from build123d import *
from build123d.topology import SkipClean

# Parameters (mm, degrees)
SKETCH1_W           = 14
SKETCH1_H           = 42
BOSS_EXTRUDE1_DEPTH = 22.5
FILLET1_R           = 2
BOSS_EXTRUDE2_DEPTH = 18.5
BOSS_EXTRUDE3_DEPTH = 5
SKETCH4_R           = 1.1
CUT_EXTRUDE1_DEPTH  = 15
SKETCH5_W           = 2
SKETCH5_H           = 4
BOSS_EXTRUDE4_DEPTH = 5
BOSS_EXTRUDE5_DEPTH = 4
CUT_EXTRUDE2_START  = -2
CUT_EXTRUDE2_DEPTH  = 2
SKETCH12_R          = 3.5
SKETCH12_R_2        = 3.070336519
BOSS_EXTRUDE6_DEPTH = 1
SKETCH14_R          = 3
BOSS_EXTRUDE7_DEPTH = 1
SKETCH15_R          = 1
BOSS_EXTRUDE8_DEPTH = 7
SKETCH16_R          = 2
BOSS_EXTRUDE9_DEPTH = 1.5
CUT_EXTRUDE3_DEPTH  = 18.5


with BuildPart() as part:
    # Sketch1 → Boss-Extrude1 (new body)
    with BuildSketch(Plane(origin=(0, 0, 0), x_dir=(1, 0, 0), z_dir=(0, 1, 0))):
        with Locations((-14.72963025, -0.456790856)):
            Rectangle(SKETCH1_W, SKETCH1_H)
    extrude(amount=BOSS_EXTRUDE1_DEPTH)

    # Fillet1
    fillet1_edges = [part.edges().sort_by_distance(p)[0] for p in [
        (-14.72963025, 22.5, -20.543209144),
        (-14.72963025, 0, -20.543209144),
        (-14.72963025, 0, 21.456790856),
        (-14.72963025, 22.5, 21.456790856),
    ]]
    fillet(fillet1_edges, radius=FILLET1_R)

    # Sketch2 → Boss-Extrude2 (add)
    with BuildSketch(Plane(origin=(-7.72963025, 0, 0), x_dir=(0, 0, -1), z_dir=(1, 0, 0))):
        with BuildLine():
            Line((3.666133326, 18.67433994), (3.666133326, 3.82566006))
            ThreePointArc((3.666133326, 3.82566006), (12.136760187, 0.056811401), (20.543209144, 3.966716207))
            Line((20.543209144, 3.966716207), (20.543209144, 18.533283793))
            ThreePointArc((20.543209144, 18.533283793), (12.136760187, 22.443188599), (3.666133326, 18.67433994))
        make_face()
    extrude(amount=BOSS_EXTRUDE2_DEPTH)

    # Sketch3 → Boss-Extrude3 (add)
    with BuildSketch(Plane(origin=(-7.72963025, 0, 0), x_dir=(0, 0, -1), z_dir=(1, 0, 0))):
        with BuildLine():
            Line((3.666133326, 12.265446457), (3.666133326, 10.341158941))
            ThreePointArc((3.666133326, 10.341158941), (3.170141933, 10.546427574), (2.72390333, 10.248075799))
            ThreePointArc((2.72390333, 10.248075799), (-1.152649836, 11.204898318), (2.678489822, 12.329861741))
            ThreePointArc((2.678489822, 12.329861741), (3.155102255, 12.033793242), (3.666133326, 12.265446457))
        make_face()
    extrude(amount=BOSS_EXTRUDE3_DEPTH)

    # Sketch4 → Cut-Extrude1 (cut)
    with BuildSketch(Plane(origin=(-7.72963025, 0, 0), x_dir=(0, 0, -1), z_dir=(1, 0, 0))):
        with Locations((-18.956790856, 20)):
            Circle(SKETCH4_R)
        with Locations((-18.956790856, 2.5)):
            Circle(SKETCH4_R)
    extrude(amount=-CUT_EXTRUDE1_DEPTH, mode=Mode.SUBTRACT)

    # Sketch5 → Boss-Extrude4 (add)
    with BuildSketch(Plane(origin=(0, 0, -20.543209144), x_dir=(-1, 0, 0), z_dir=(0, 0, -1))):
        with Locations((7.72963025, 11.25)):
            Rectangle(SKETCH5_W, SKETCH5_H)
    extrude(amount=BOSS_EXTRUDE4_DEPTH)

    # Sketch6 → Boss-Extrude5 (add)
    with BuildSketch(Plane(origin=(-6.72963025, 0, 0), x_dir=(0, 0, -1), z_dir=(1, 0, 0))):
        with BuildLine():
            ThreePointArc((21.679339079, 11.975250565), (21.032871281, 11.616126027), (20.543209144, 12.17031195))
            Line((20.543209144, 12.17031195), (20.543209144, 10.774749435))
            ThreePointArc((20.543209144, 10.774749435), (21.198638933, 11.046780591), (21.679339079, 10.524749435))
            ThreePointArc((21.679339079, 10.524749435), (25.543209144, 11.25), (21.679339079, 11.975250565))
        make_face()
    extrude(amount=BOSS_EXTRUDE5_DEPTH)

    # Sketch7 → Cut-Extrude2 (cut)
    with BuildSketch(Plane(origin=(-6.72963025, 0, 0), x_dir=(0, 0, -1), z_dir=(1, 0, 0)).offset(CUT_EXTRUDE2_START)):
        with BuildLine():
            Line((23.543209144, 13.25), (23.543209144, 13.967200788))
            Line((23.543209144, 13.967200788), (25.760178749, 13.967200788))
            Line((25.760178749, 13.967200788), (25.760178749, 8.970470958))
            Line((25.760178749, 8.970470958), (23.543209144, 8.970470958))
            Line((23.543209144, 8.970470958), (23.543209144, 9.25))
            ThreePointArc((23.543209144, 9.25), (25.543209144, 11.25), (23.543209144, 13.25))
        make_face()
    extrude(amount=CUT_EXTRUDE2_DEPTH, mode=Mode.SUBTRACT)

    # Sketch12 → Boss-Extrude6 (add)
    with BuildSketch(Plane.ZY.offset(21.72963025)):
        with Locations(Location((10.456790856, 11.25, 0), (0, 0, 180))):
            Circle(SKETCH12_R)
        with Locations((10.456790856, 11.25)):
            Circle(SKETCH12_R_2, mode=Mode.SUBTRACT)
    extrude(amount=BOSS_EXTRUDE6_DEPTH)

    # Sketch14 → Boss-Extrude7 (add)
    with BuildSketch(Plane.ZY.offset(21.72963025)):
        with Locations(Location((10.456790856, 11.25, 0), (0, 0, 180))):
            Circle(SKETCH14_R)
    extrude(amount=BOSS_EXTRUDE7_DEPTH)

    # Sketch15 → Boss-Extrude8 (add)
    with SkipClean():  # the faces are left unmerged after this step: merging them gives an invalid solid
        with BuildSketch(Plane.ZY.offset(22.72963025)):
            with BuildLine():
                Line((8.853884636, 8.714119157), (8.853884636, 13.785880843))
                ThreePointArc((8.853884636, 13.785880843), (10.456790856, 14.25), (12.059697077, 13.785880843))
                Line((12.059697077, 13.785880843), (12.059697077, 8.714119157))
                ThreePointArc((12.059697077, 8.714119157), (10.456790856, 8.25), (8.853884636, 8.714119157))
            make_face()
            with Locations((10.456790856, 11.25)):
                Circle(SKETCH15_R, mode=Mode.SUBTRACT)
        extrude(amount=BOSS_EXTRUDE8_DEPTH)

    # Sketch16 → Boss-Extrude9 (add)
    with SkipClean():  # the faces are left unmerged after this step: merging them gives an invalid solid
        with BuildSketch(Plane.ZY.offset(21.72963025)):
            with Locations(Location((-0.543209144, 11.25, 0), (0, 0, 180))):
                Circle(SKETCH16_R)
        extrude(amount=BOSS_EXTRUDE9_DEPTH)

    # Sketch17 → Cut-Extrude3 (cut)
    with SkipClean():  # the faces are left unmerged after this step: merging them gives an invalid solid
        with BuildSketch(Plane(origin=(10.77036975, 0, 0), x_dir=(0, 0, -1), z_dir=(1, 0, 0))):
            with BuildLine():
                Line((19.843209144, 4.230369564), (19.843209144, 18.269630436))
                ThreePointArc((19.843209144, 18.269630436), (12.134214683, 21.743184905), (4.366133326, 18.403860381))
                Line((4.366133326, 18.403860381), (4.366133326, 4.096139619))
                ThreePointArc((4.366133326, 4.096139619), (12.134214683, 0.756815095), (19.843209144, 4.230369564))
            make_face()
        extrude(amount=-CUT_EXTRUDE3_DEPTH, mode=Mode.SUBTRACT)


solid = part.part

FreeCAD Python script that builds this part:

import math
import FreeCAD as App
import Part
import Sketcher

V = App.Vector


def edges_at(feature, points):
    """Names of the edges that pass closest to the given points."""
    edges = feature.Shape.Edges
    near = lambda p: min(range(len(edges)), key=lambda i: edges[i].distToShape(Part.Vertex(*p))[0])
    return sorted({f"Edge{near(p) + 1}" for p in points})


def add_polygon(sketch, points):
    """Adds a closed chain of lines whose ends are joined by coincident constraints."""
    first, n = sketch.GeometryCount, len(points)
    for a, b in zip(points, points[1:] + points[:1]):
        sketch.addGeometry(Part.LineSegment(App.Vector(*a, 0), App.Vector(*b, 0)), False)
    for i in range(n):
        sketch.addConstraint(Sketcher.Constraint("Coincident", first + i, 2, first + (i + 1) % n, 1))

doc = App.newDocument("Part")
params = doc.addObject("Spreadsheet::Sheet", "Params")
for row, (alias, value) in enumerate([
    ("sketch1_width", "14 mm"),
    ("sketch1_height", "42 mm"),
    ("pad1_length", "22.5 mm"),
    ("fillet_radius", "2 mm"),
    ("sketch2_height", "8.5 mm"),
    ("pad2_length", "18.5 mm"),
    ("pad3_length", "5 mm"),
    ("sketch4_diameter", "2.2 mm"),
    ("pocket1_length", "15 mm"),
    ("sketch5_width", "2 mm"),
    ("sketch5_height", "4 mm"),
    ("pad4_length", "5 mm"),
    ("sketch6_radius", "2 mm"),
    ("pad5_length", "4 mm"),
    ("sketch7_radius", "2 mm"),
    ("pocket2_length", "2 mm"),
    ("sketch8_diameter", "7 mm"),
    ("pad6_length", "1 mm"),
    ("sketch9_diameter", "6 mm"),
    ("pad7_length", "1 mm"),
    ("sketch10_diameter", "2 mm"),
    ("sketch10_radius", "3 mm"),
    ("pad8_length", "7 mm"),
    ("sketch11_diameter", "4 mm"),
    ("pad9_length", "1.5 mm"),
    ("pocket3_length", "18.5 mm"),
], start=1):
    params.set(f"A{row}", alias)
    params.set(f"B{row}", "=" + value)
    params.setAlias(f"B{row}", alias)

body = doc.addObject("PartDesign::Body", "Body")

# Sketch on XZ plane
sketch1 = body.newObject("Sketcher::SketchObject", "Sketch")
sketch1.AttachmentSupport = (doc.getObject("XZ_Plane"), [""])
sketch1.MapMode = "FlatFace"
add_polygon(sketch1, [(-22, -21), (-22, 21), (-8, 21), (-8, -21)])  # lines 0-3
sketch1.addConstraint(Sketcher.Constraint("Vertical", 0))
sketch1.addConstraint(Sketcher.Constraint("Horizontal", 1))
sketch1.addConstraint(Sketcher.Constraint("Vertical", 2))
sketch1.addConstraint(Sketcher.Constraint("Horizontal", 3))
sketch1.addConstraint(Sketcher.Constraint("DistanceX", 1, 1, 1, 2, 14.0))
sketch1.addConstraint(Sketcher.Constraint("DistanceY", 0, 1, 0, 2, 42.0))
sketch1.addConstraint(Sketcher.Constraint("DistanceX", 0, 2, -1, 1, 21.72963))
sketch1.addConstraint(Sketcher.Constraint("DistanceY", -1, 1, 0, 2, 21.456791))
sketch1.setExpression("Constraints[8]", "Params.sketch1_width")
sketch1.setExpression("Constraints[9]", "Params.sketch1_height")
pad1 = body.newObject("PartDesign::Pad", "Pad")
pad1.Profile = sketch1
pad1.setExpression("Length", "Params.pad1_length")
pad1.Reversed = True
doc.recompute()

fillet = body.newObject("PartDesign::Fillet", "Fillet")
fillet.Base = (pad1, edges_at(pad1, [
    (-14.73, 22.5, -20.543),
    (-14.73, 0, -20.543),
    (-14.73, 0, 21.457),
    (-14.73, 22.5, 21.457),
]))
fillet.setExpression("Radius", "Params.fillet_radius")

# Sketch on YZ plane
sketch2 = body.newObject("Sketcher::SketchObject", "Sketch001")
sketch2.AttachmentSupport = (doc.getObject("YZ_Plane"), [""])
sketch2.MapMode = "FlatFace"
sketch2.AttachmentOffset = App.Placement(V(0, 0, -7.72963), App.Rotation())
sketch2.addGeometry(Part.LineSegment(V(19, -4, 0), V(4, -4, 0)), False)
sketch2.addGeometry(Part.ArcOfCircle(Part.Circle(V(11, -12, 0), V(0, 0, 1), 11), math.radians(132), math.radians(229)), False)
sketch2.addGeometry(Part.LineSegment(V(4, -21, 0), V(19, -21, 0)), False)
sketch2.addGeometry(Part.ArcOfCircle(Part.Circle(V(11, -12, 0), V(0, 0, 1), 11), math.radians(-49), math.radians(48)), False)
sketch2.addConstraint(Sketcher.Constraint("Coincident", 0, 2, 1, 1))
sketch2.addConstraint(Sketcher.Constraint("Coincident", 1, 2, 2, 1))
sketch2.addConstraint(Sketcher.Constraint("Coincident", 2, 2, 3, 1))
sketch2.addConstraint(Sketcher.Constraint("Coincident", 3, 2, 0, 1))
sketch2.addConstraint(Sketcher.Constraint("Horizontal", 0))
sketch2.addConstraint(Sketcher.Constraint("Horizontal", 2))
sketch2.addConstraint(Sketcher.Constraint("Coincident", 3, 3, 1, 3))
sketch2.addConstraint(Sketcher.Constraint("Equal", 1, 3))
sketch2.addConstraint(Sketcher.Constraint("DistanceY", 1, 2, 1, 3, 8.5))
sketch2.addConstraint(Sketcher.Constraint("DistanceX", -1, 1, 1, 3, 11.25))
sketch2.addConstraint(Sketcher.Constraint("Radius", 1, 11.19358))
sketch2.addConstraint(Sketcher.Constraint("DistanceX", 0, 2, 0, 1, 14.84868))
sketch2.addConstraint(Sketcher.Constraint("DistanceY", 1, 3, -1, 1, 12.043209))
sketch2.setExpression("Constraints[8]", "Params.sketch2_height")
pad2 = body.newObject("PartDesign::Pad", "Pad001")
pad2.Profile = sketch2
pad2.setExpression("Length", "Params.pad2_length")

# Sketch on YZ plane
sketch3 = body.newObject("Sketcher::SketchObject", "Sketch002")
sketch3.AttachmentSupport = (doc.getObject("YZ_Plane"), [""])
sketch3.MapMode = "FlatFace"
sketch3.AttachmentOffset = App.Placement(V(0, 0, -7.72963), App.Rotation())
sketch3.addGeometry(Part.LineSegment(V(10.3, -3.7, 0), V(12.3, -3.7, 0)), False)
sketch3.addGeometry(Part.ArcOfCircle(Part.Circle(V(12.6, -3.2, 0), V(0, 0, 1), 0.6), math.radians(120), math.radians(233)), False)
sketch3.addGeometry(Part.ArcOfCircle(Part.Circle(V(11.2, -0.9, 0), V(0, 0, 1), 2.1), math.radians(-59), math.radians(241)), False)
sketch3.addGeometry(Part.ArcOfCircle(Part.Circle(V(10, -3.2, 0), V(0, 0, 1), 0.6), math.radians(-51), math.radians(62)), False)
sketch3.addConstraint(Sketcher.Constraint("Coincident", 0, 2, 1, 2))
sketch3.addConstraint(Sketcher.Constraint("Coincident", 1, 1, 2, 1))
sketch3.addConstraint(Sketcher.Constraint("Coincident", 2, 2, 3, 2))
sketch3.addConstraint(Sketcher.Constraint("Coincident", 3, 1, 0, 1))
sketch3.addConstraint(Sketcher.Constraint("Horizontal", 0))
sketch3.addConstraint(Sketcher.Constraint("DistanceX", -1, 1, 2, 3, 11.25))
sketch3.addConstraint(Sketcher.Constraint("Radius", 1, 0.595292))
sketch3.addConstraint(Sketcher.Constraint("Radius", 3, 0.569371))
sketch3.addConstraint(Sketcher.Constraint("Radius", 2, 2.067984))
sketch3.addConstraint(Sketcher.Constraint("DistanceX", 0, 1, 0, 2, 1.924288))
sketch3.addConstraint(Sketcher.Constraint("DistanceY", 2, 3, -1, 1, 0.914842))
sketch3.addConstraint(Sketcher.Constraint("DistanceX", -1, 1, 1, 1, 12.329862))
sketch3.addConstraint(Sketcher.Constraint("DistanceX", -1, 1, 3, 1, 10.341159))
sketch3.addConstraint(Sketcher.Constraint("DistanceX", 3, 3, 1, 3, 2.648008))
sketch3.addConstraint(Sketcher.Constraint("DistanceX", 3, 3, 0, 2, 2.285632))
pad3 = body.newObject("PartDesign::Pad", "Pad002")
pad3.Profile = sketch3
pad3.setExpression("Length", "Params.pad3_length")

# Sketch on YZ plane
sketch4 = body.newObject("Sketcher::SketchObject", "Sketch003")
sketch4.AttachmentSupport = (doc.getObject("YZ_Plane"), [""])
sketch4.MapMode = "FlatFace"
sketch4.AttachmentOffset = App.Placement(V(0, 0, -7.72963), App.Rotation())
sketch4.addGeometry(Part.Circle(V(20, 19, 0), V(0, 0, 1), 1.1), False)
sketch4.addGeometry(Part.Circle(V(2.5, 19, 0), V(0, 0, 1), 1.1), False)
sketch4.addConstraint(Sketcher.Constraint("Equal", 0, 1))
sketch4.addConstraint(Sketcher.Constraint("Horizontal", 0, 3, 1, 3))
sketch4.addConstraint(Sketcher.Constraint("Diameter", 0, 2.2))
sketch4.addConstraint(Sketcher.Constraint("DistanceX", -1, 1, 0, 3, 20.0))
sketch4.addConstraint(Sketcher.Constraint("DistanceX", -1, 1, 1, 3, 2.5))
sketch4.addConstraint(Sketcher.Constraint("DistanceY", -1, 1, 0, 3, 18.956791))
sketch4.setExpression("Constraints[2]", "Params.sketch4_diameter")
pocket1 = body.newObject("PartDesign::Pocket", "Pocket")
pocket1.Profile = sketch4
pocket1.setExpression("Length", "Params.pocket1_length")

# Sketch on XY plane
sketch5 = body.newObject("Sketcher::SketchObject", "Sketch004")
sketch5.AttachmentSupport = (doc.getObject("XY_Plane"), [""])
sketch5.MapMode = "FlatFace"
sketch5.AttachmentOffset = App.Placement(V(0, 0, -20.543209), App.Rotation())
add_polygon(sketch5, [(-6.7, 13.2), (-6.7, 9.2), (-8.7, 9.2), (-8.7, 13.2)])  # lines 0-3
sketch5.addConstraint(Sketcher.Constraint("Vertical", 0))
sketch5.addConstraint(Sketcher.Constraint("Horizontal", 1))
sketch5.addConstraint(Sketcher.Constraint("Vertical", 2))
sketch5.addConstraint(Sketcher.Constraint("Horizontal", 3))
sketch5.addConstraint(Sketcher.Constraint("DistanceX", 1, 2, 1, 1, 2.0))
sketch5.addConstraint(Sketcher.Constraint("DistanceY", 0, 2, 0, 1, 4.0))
sketch5.addConstraint(Sketcher.Constraint("DistanceY", -1, 1, 0, 2, 9.25))
sketch5.addConstraint(Sketcher.Constraint("DistanceX", 0, 2, -1, 1, 6.72963))
sketch5.setExpression("Constraints[8]", "Params.sketch5_width")
sketch5.setExpression("Constraints[9]", "Params.sketch5_height")
pad4 = body.newObject("PartDesign::Pad", "Pad003")
pad4.Profile = sketch5
pad4.setExpression("Length", "Params.pad4_length")
pad4.Reversed = True

# Sketch on YZ plane
sketch6 = body.newObject("Sketcher::SketchObject", "Sketch005")
sketch6.AttachmentSupport = (doc.getObject("YZ_Plane"), [""])
sketch6.MapMode = "FlatFace"
sketch6.AttachmentOffset = App.Placement(V(0, 0, -6.72963), App.Rotation())
sketch6.addGeometry(Part.ArcOfCircle(Part.Circle(V(12.2, -21.1, 0), V(0, 0, 1), 0.6), math.radians(93), math.radians(248)), False)
sketch6.addGeometry(Part.LineSegment(V(12.2, -20.5, 0), V(10.8, -20.5, 0)), False)
sketch6.addGeometry(Part.ArcOfCircle(Part.Circle(V(10.4, -21.1, 0), V(0, 0, 1), 0.6), math.radians(-82), math.radians(57)), False)
sketch6.addGeometry(Part.ArcOfCircle(Part.Circle(V(11.2, -23.5, 0), V(0, 0, 1), 2), math.radians(111), math.radians(429)), False)
sketch6.addConstraint(Sketcher.Constraint("Coincident", 0, 1, 1, 1))
sketch6.addConstraint(Sketcher.Constraint("Coincident", 1, 2, 2, 2))
sketch6.addConstraint(Sketcher.Constraint("Coincident", 2, 1, 3, 1))
sketch6.addConstraint(Sketcher.Constraint("Coincident", 3, 2, 0, 2))
sketch6.addConstraint(Sketcher.Constraint("Horizontal", 1))
sketch6.addConstraint(Sketcher.Constraint("Horizontal", 2, 1, 3, 2))
sketch6.addConstraint(Sketcher.Constraint("Radius", 3, 2.0))
sketch6.addConstraint(Sketcher.Constraint("DistanceY", 3, 3, 0, 1, 3.0))
sketch6.addConstraint(Sketcher.Constraint("DistanceX", -1, 1, 3, 3, 11.25))
sketch6.addConstraint(Sketcher.Constraint("DistanceX", 2, 1, 1, 2, 0.25))
sketch6.addConstraint(Sketcher.Constraint("Radius", 0, 0.590166))
sketch6.addConstraint(Sketcher.Constraint("Radius", 2, 0.619376))
sketch6.addConstraint(Sketcher.Constraint("DistanceX", 2, 1, 3, 2, 1.450501))
sketch6.addConstraint(Sketcher.Constraint("DistanceX", 1, 2, 1, 1, 1.395563))
sketch6.addConstraint(Sketcher.Constraint("DistanceY", 3, 3, -1, 1, 23.543209))
sketch6.setExpression("Constraints[6]", "Params.sketch6_radius")
pad5 = body.newObject("PartDesign::Pad", "Pad004")
pad5.Profile = sketch6
pad5.setExpression("Length", "Params.pad5_length")

# Sketch on YZ plane
sketch7 = body.newObject("Sketcher::SketchObject", "Sketch006")
sketch7.AttachmentSupport = (doc.getObject("YZ_Plane"), [""])
sketch7.MapMode = "FlatFace"
sketch7.AttachmentOffset = App.Placement(V(0, 0, -8.72963), App.Rotation())
sketch7.addGeometry(Part.LineSegment(V(13.97, -23.54, 0), V(13.25, -23.54, 0)), False)
sketch7.addGeometry(Part.ArcOfCircle(Part.Circle(V(11.25, -23.54, 0), V(0, 0, 1), 2), math.radians(180), math.radians(360)), False)
sketch7.addGeometry(Part.LineSegment(V(9.25, -23.54, 0), V(8.97, -23.54, 0)), False)
sketch7.addGeometry(Part.LineSegment(V(8.97, -23.54, 0), V(8.97, -25.76, 0)), False)
sketch7.addGeometry(Part.LineSegment(V(8.97, -25.76, 0), V(13.97, -25.76, 0)), False)
sketch7.addGeometry(Part.LineSegment(V(13.97, -25.76, 0), V(13.97, -23.54, 0)), False)
sketch7.addConstraint(Sketcher.Constraint("Coincident", 0, 2, 1, 2))
sketch7.addConstraint(Sketcher.Constraint("Coincident", 1, 1, 2, 1))
sketch7.addConstraint(Sketcher.Constraint("Coincident", 2, 2, 3, 1))
sketch7.addConstraint(Sketcher.Constraint("Coincident", 3, 2, 4, 1))
sketch7.addConstraint(Sketcher.Constraint("Coincident", 4, 2, 5, 1))
sketch7.addConstraint(Sketcher.Constraint("Coincident", 5, 2, 0, 1))
sketch7.addConstraint(Sketcher.Constraint("Horizontal", 0))
sketch7.addConstraint(Sketcher.Constraint("Horizontal", 2))
sketch7.addConstraint(Sketcher.Constraint("Vertical", 3))
sketch7.addConstraint(Sketcher.Constraint("Horizontal", 4))
sketch7.addConstraint(Sketcher.Constraint("Vertical", 5))
sketch7.addConstraint(Sketcher.Constraint("Horizontal", 1, 3, 0, 2))
sketch7.addConstraint(Sketcher.Constraint("Horizontal", 0, 2, 1, 1))
sketch7.addConstraint(Sketcher.Constraint("Radius", 1, 2.0))
sketch7.addConstraint(Sketcher.Constraint("DistanceX", -1, 1, 1, 3, 11.25))
sketch7.addConstraint(Sketcher.Constraint("DistanceX", 0, 2, 0, 1, 0.717201))
sketch7.addConstraint(Sketcher.Constraint("DistanceX", 2, 2, 2, 1, 0.279529))
sketch7.addConstraint(Sketcher.Constraint("DistanceY", 3, 2, 3, 1, 2.21697))
sketch7.addConstraint(Sketcher.Constraint("DistanceY", 1, 3, -1, 1, 23.543209))
sketch7.setExpression("Constraints[13]", "Params.sketch7_radius")
pocket2 = body.newObject("PartDesign::Pocket", "Pocket001")
pocket2.Profile = sketch7
pocket2.setExpression("Length", "Params.pocket2_length")
pocket2.Reversed = True

# Sketch on YZ plane
sketch8 = body.newObject("Sketcher::SketchObject", "Sketch007")
sketch8.AttachmentSupport = (doc.getObject("YZ_Plane"), [""])
sketch8.MapMode = "FlatFace"
sketch8.AttachmentOffset = App.Placement(V(0, 0, -21.72963), App.Rotation())
sketch8.addGeometry(Part.Circle(V(11.2, 10.5, 0), V(0, 0, 1), 3.5), False)
sketch8.addGeometry(Part.Circle(V(11.2, 10.5, 0), V(0, 0, 1), 3.1), False)
sketch8.addConstraint(Sketcher.Constraint("Coincident", 1, 3, 0, 3))
sketch8.addConstraint(Sketcher.Constraint("Diameter", 0, 7.0))
sketch8.addConstraint(Sketcher.Constraint("DistanceX", -1, 1, 0, 3, 11.25))
sketch8.addConstraint(Sketcher.Constraint("Diameter", 1, 6.140673))
sketch8.addConstraint(Sketcher.Constraint("DistanceY", -1, 1, 0, 3, 10.456791))
sketch8.setExpression("Constraints[1]", "Params.sketch8_diameter")
pad6 = body.newObject("PartDesign::Pad", "Pad005")
pad6.Profile = sketch8
pad6.setExpression("Length", "Params.pad6_length")
pad6.Reversed = True

# Sketch on YZ plane
sketch9 = body.newObject("Sketcher::SketchObject", "Sketch008")
sketch9.AttachmentSupport = (doc.getObject("YZ_Plane"), [""])
sketch9.MapMode = "FlatFace"
sketch9.AttachmentOffset = App.Placement(V(0, 0, -21.72963), App.Rotation())
sketch9.addGeometry(Part.Circle(V(11.2, 10.5, 0), V(0, 0, 1), 3), False)
sketch9.addConstraint(Sketcher.Constraint("Diameter", 0, 6.0))
sketch9.addConstraint(Sketcher.Constraint("DistanceX", -1, 1, 0, 3, 11.25))
sketch9.addConstraint(Sketcher.Constraint("DistanceY", -1, 1, 0, 3, 10.456791))
sketch9.setExpression("Constraints[0]", "Params.sketch9_diameter")
pad7 = body.newObject("PartDesign::Pad", "Pad006")
pad7.Profile = sketch9
pad7.setExpression("Length", "Params.pad7_length")
pad7.Reversed = True

# Sketch on YZ plane
sketch10 = body.newObject("Sketcher::SketchObject", "Sketch009")
sketch10.AttachmentSupport = (doc.getObject("YZ_Plane"), [""])
sketch10.MapMode = "FlatFace"
sketch10.AttachmentOffset = App.Placement(V(0, 0, -22.72963), App.Rotation())
sketch10.addGeometry(Part.LineSegment(V(13.8, 8.9, 0), V(8.7, 8.9, 0)), False)
sketch10.addGeometry(Part.ArcOfCircle(Part.Circle(V(11.3, 10.5, 0), V(0, 0, 1), 3), math.radians(148), math.radians(212)), False)
sketch10.addGeometry(Part.LineSegment(V(8.7, 12.1, 0), V(13.8, 12.1, 0)), False)
sketch10.addGeometry(Part.ArcOfCircle(Part.Circle(V(11.2, 10.5, 0), V(0, 0, 1), 3), math.radians(-32), math.radians(32)), False)
sketch10.addGeometry(Part.Circle(V(11.2, 10.5, 0), V(0, 0, 1), 1), False)
sketch10.addConstraint(Sketcher.Constraint("Coincident", 0, 2, 1, 2))
sketch10.addConstraint(Sketcher.Constraint("Coincident", 1, 1, 2, 1))
sketch10.addConstraint(Sketcher.Constraint("Coincident", 2, 2, 3, 2))
sketch10.addConstraint(Sketcher.Constraint("Coincident", 3, 1, 0, 1))
sketch10.addConstraint(Sketcher.Constraint("Horizontal", 0))
sketch10.addConstraint(Sketcher.Constraint("Horizontal", 2))
sketch10.addConstraint(Sketcher.Constraint("Coincident", 3, 3, 1, 3))
sketch10.addConstraint(Sketcher.Constraint("Coincident", 4, 3, 1, 3))
sketch10.addConstraint(Sketcher.Constraint("Equal", 1, 3))
sketch10.addConstraint(Sketcher.Constraint("Vertical", 0, 2, 1, 1))
sketch10.addConstraint(Sketcher.Constraint("Diameter", 4, 2.0))
sketch10.addConstraint(Sketcher.Constraint("Radius", 1, 3.0))
sketch10.addConstraint(Sketcher.Constraint("DistanceX", -1, 1, 1, 3, 11.25))
sketch10.addConstraint(Sketcher.Constraint("DistanceX", 0, 2, 0, 1, 5.071762))
sketch10.addConstraint(Sketcher.Constraint("DistanceY", -1, 1, 1, 3, 10.456791))
sketch10.setExpression("Constraints[10]", "Params.sketch10_diameter")
sketch10.setExpression("Constraints[11]", "Params.sketch10_radius")
pad8 = body.newObject("PartDesign::Pad", "Pad007")
pad8.Profile = sketch10
pad8.setExpression("Length", "Params.pad8_length")
pad8.Reversed = True

# Sketch on YZ plane
sketch11 = body.newObject("Sketcher::SketchObject", "Sketch010")
sketch11.AttachmentSupport = (doc.getObject("YZ_Plane"), [""])
sketch11.MapMode = "FlatFace"
sketch11.AttachmentOffset = App.Placement(V(0, 0, -21.72963), App.Rotation())
sketch11.addGeometry(Part.Circle(V(11.2, -0.5, 0), V(0, 0, 1), 2), False)
sketch11.addConstraint(Sketcher.Constraint("Diameter", 0, 4.0))
sketch11.addConstraint(Sketcher.Constraint("DistanceX", -1, 1, 0, 3, 11.25))
sketch11.addConstraint(Sketcher.Constraint("DistanceY", 0, 3, -1, 1, 0.543209))
sketch11.setExpression("Constraints[0]", "Params.sketch11_diameter")
pad9 = body.newObject("PartDesign::Pad", "Pad008")
pad9.Profile = sketch11
pad9.setExpression("Length", "Params.pad9_length")
pad9.Reversed = True

# Sketch on YZ plane
sketch12 = body.newObject("Sketcher::SketchObject", "Sketch011")
sketch12.AttachmentSupport = (doc.getObject("YZ_Plane"), [""])
sketch12.MapMode = "FlatFace"
sketch12.AttachmentOffset = App.Placement(V(0, 0, 10.77037), App.Rotation())
sketch12.addGeometry(Part.LineSegment(V(4, -20, 0), V(18, -20, 0)), False)
sketch12.addGeometry(Part.ArcOfCircle(Part.Circle(V(11, -12, 0), V(0, 0, 1), 10), math.radians(-48), math.radians(47)), False)
sketch12.addGeometry(Part.LineSegment(V(18, -4, 0), V(4, -4, 0)), False)
sketch12.addGeometry(Part.ArcOfCircle(Part.Circle(V(11, -12, 0), V(0, 0, 1), 10), math.radians(133), math.radians(228)), False)
sketch12.addConstraint(Sketcher.Constraint("Coincident", 0, 2, 1, 1))
sketch12.addConstraint(Sketcher.Constraint("Coincident", 1, 2, 2, 1))
sketch12.addConstraint(Sketcher.Constraint("Coincident", 2, 2, 3, 1))
sketch12.addConstraint(Sketcher.Constraint("Coincident", 3, 2, 0, 1))
sketch12.addConstraint(Sketcher.Constraint("Horizontal", 0))
sketch12.addConstraint(Sketcher.Constraint("Horizontal", 2))
sketch12.addConstraint(Sketcher.Constraint("Coincident", 3, 3, 1, 3))
sketch12.addConstraint(Sketcher.Constraint("Equal", 1, 3))
sketch12.addConstraint(Sketcher.Constraint("DistanceY", 0, 2, 3, 3, 7.8))
sketch12.addConstraint(Sketcher.Constraint("DistanceX", -1, 1, 1, 3, 11.25))
sketch12.addConstraint(Sketcher.Constraint("Radius", 1, 10.49358))
sketch12.addConstraint(Sketcher.Constraint("DistanceX", 2, 2, 2, 1, 14.307721))
sketch12.addConstraint(Sketcher.Constraint("DistanceY", 1, 3, -1, 1, 12.043209))
pocket3 = body.newObject("PartDesign::Pocket", "Pocket002")
pocket3.Profile = sketch12
pocket3.setExpression("Length", "Params.pocket3_length")

doc.recompute()
